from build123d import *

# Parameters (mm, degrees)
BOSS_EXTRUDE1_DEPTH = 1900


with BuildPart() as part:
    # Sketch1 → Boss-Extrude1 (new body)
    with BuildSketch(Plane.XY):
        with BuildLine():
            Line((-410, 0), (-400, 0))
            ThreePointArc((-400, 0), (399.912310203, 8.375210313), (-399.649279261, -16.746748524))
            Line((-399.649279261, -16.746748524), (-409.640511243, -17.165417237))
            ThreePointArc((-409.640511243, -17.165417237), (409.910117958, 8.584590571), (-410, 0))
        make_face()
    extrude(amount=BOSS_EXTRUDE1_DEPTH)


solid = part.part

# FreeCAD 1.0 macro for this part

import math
import FreeCAD as App
import Part
import Sketcher
from FreeCAD import Vector
Q = App.Units.Quantity

doc = App.newDocument("Part")
params = doc.addObject("Spreadsheet::Sheet", "Params")
for row, (alias, value) in enumerate([
    ("sketch1_radius", "400 mm"),
    ("sketch1_radius2", "410 mm"),
    ("pad1_length", "1900 mm"),
], start=1):
    params.set(f"A{row}", alias)
    params.set(f"B{row}", "=" + value)
    params.setAlias(f"B{row}", alias)

body = doc.addObject("PartDesign::Body", "Body")

sketch1 = body.newObject("Sketcher::SketchObject", "Sketch")
sketch1.AttachmentSupport = (doc.getObject("XY_Plane"), [""])
sketch1.MapMode = "FlatFace"
sketch1.addGeometry([
    Part.LineSegment(Vector(-410, 0, 0), Vector(-400, 0, 0)),
    Part.ArcOfCircle(Part.Circle(Vector(0, 0, 0), Vector(0, 0, 1), 400), math.radians(-177.600504), math.radians(180)),
    Part.LineSegment(Vector(-399.649279, -16.746749, 0), Vector(-409.640511, -17.165417, 0)),
    Part.ArcOfCircle(Part.Circle(Vector(0, 0, 0), Vector(0, 0, 1), 410), math.radians(-177.600504), math.radians(180)),
], False)
sketch1.addConstraint([
    Sketcher.Constraint("Coincident", 0, 2, 1, 2),
    Sketcher.Constraint("Coincident", 1, 1, 2, 1),
    Sketcher.Constraint("Coincident", 2, 2, 3, 1),
    Sketcher.Constraint("Coincident", 3, 2, 0, 1),
    Sketcher.Constraint("Horizontal", 0),
    Sketcher.Constraint("Coincident", 1, 3, -1, 1),
    Sketcher.Constraint("Coincident", 3, 3, -1, 1),
    Sketcher.Constraint("PointOnObject", 0, 2, -1),
    Sketcher.Constraint("Radius", 1, Q("400 mm")),
    Sketcher.Constraint("Radius", 3, Q("410 mm")),
    Sketcher.Constraint("DistanceX", 1, 1, -1, 1, Q("399.649279 mm")),
    Sketcher.Constraint("DistanceX", 2, 2, -1, 1, Q("409.640511 mm")),
])
sketch1.setExpression("Constraints[8]", "Params.sketch1_radius")
sketch1.setExpression("Constraints[9]", "Params.sketch1_radius2")
pad1 = body.newObject("PartDesign::Pad", "Pad")
pad1.Profile = sketch1
pad1.setExpression("Length", "Params.pad1_length")

doc.recompute()
